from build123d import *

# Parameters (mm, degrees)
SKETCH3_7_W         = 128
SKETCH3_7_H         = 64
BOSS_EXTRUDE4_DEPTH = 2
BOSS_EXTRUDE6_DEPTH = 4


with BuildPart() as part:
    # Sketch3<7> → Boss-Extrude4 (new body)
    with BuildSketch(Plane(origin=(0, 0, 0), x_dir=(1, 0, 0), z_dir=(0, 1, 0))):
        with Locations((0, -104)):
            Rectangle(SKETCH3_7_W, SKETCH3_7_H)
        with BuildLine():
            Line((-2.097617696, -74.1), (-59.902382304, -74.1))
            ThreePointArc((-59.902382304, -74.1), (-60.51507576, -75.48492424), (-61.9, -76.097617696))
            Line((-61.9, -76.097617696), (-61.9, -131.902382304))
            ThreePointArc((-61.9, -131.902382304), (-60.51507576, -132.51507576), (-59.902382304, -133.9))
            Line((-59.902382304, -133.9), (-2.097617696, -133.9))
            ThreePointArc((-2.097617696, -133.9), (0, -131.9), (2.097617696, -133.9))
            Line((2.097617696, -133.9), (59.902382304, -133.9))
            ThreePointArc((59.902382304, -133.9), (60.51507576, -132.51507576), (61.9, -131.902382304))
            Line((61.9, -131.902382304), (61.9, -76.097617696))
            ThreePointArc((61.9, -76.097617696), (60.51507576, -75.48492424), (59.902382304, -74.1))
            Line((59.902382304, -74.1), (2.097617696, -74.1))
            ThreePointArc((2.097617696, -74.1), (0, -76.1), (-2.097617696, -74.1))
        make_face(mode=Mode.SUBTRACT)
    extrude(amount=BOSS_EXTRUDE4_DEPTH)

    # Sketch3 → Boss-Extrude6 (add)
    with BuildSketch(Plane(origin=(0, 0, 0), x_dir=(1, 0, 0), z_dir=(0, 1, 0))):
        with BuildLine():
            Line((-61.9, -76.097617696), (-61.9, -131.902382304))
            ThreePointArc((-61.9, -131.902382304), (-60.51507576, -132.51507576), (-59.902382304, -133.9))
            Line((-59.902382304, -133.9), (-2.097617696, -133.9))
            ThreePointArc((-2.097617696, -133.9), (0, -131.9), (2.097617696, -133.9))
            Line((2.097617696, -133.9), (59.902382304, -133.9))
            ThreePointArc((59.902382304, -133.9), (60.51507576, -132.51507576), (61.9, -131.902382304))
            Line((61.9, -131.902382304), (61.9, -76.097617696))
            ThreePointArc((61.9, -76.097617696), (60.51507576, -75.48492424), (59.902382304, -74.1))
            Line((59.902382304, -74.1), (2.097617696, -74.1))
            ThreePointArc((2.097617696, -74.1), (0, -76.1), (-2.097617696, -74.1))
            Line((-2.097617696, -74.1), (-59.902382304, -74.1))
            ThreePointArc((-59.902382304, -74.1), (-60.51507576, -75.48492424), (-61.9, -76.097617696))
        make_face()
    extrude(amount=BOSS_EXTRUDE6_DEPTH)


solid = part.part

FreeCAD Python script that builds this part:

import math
import FreeCAD as App
import Part
import Sketcher
from FreeCAD import Vector
Q = App.Units.Quantity

doc = App.newDocument("Part")
body = doc.addObject("PartDesign::Body", "Body")

# Sketch on XZ plane
sketch1 = body.newObject("Sketcher::SketchObject", "Sketch")
sketch1.AttachmentSupport = (doc.getObject("XZ_Plane"), [""])
sketch1.MapMode = "FlatFace"
sketch1.addGeometry([
    Part.LineSegment(Vector(-64, 72, 0), Vector(-64, 136, 0)),  # 0
    Part.LineSegment(Vector(-64, 136, 0), Vector(64, 136, 0)),  # 1
    Part.LineSegment(Vector(64, 136, 0), Vector(64, 72, 0)),  # 2
    Part.LineSegment(Vector(64, 72, 0), Vector(-64, 72, 0)),  # 3
    Part.LineSegment(Vector(-59.9, 74.1, 0), Vector(-2.1, 74.1, 0)),  # 4
    Part.ArcOfCircle(Part.Circle(Vector(0, 74, 0), Vector(0, 0, 1), 2.1), math.radians(3), math.radians(177)),  # 5
    Part.LineSegment(Vector(2.1, 74.1, 0), Vector(59.9, 74.1, 0)),  # 6
    Part.ArcOfCircle(Part.Circle(Vector(62, 74, 0), Vector(0, 0, 1), 2.1), math.radians(93), math.radians(177)),  # 7
    Part.LineSegment(Vector(61.9, 76.1, 0), Vector(61.9, 131.9, 0)),  # 8
    Part.ArcOfCircle(Part.Circle(Vector(62, 134, 0), Vector(0, 0, 1), 2.1), math.radians(-177), math.radians(-93)),  # 9
    Part.LineSegment(Vector(59.9, 133.9, 0), Vector(2.1, 133.9, 0)),  # 10
    Part.ArcOfCircle(Part.Circle(Vector(0, 134, 0), Vector(0, 0, 1), 2.1), math.radians(-177), math.radians(-3)),  # 11
    Part.LineSegment(Vector(-2.1, 133.9, 0), Vector(-59.9, 133.9, 0)),  # 12
    Part.ArcOfCircle(Part.Circle(Vector(-62, 134, 0), Vector(0, 0, 1), 2.1), math.radians(-87), math.radians(-3)),  # 13
    Part.LineSegment(Vector(-61.9, 131.9, 0), Vector(-61.9, 76.1, 0)),  # 14
    Part.ArcOfCircle(Part.Circle(Vector(-62, 74, 0), Vector(0, 0, 1), 2.1), math.radians(3), math.radians(87)),  # 15
], False)
sketch1.addConstraint([
    Sketcher.Constraint("Coincident", 0, 2, 1, 1),
    Sketcher.Constraint("Coincident", 1, 2, 2, 1),
    Sketcher.Constraint("Coincident", 2, 2, 3, 1),
    Sketcher.Constraint("Coincident", 3, 2, 0, 1),
    Sketcher.Constraint("Coincident", 4, 2, 5, 2),
    Sketcher.Constraint("Coincident", 5, 1, 6, 1),
    Sketcher.Constraint("Coincident", 6, 2, 7, 2),
    Sketcher.Constraint("Coincident", 7, 1, 8, 1),
    Sketcher.Constraint("Coincident", 8, 2, 9, 2),
    Sketcher.Constraint("Coincident", 9, 1, 10, 1),
    Sketcher.Constraint("Coincident", 10, 2, 11, 2),
    Sketcher.Constraint("Coincident", 11, 1, 12, 1),
    Sketcher.Constraint("Coincident", 12, 2, 13, 2),
    Sketcher.Constraint("Coincident", 13, 1, 14, 1),
    Sketcher.Constraint("Coincident", 14, 2, 15, 2),
    Sketcher.Constraint("Coincident", 15, 1, 4, 1),
    Sketcher.Constraint("Vertical", 0),
    Sketcher.Constraint("Horizontal", 1),
    Sketcher.Constraint("Vertical", 2),
    Sketcher.Constraint("Horizontal", 3),
    Sketcher.Constraint("Horizontal", 4),
    Sketcher.Constraint("Horizontal", 6),
    Sketcher.Constraint("Vertical", 8),
    Sketcher.Constraint("Horizontal", 10),
    Sketcher.Constraint("Horizontal", 12),
    Sketcher.Constraint("Vertical", 14),
    Sketcher.Constraint("Equal", 5, 7),
    Sketcher.Constraint("Equal", 7, 9),
    Sketcher.Constraint("Equal", 9, 11),
    Sketcher.Constraint("Equal", 11, 13),
    Sketcher.Constraint("Equal", 13, 15),
    Sketcher.Constraint("Symmetric", 9, 3, 13, 3, -2),
    Sketcher.Constraint("Symmetric", 7, 3, 15, 3, -2),
    Sketcher.Constraint("Symmetric", 4, 2, 5, 1, -2),
    Sketcher.Constraint("Symmetric", 10, 2, 11, 1, -2),
    Sketcher.Constraint("Horizontal", 5, 3, 7, 3),
    Sketcher.Constraint("Horizontal", 9, 3, 11, 3),
    Sketcher.Constraint("Horizontal", 8, 2, 13, 1),
    Sketcher.Constraint("Vertical", 7, 3, 9, 3),
    Sketcher.Constraint("Vertical", 6, 2, 9, 1),
    Sketcher.Constraint("Radius", 5, Q("2.1 mm")),
    Sketcher.Constraint("DistanceX", 1, 1, 1, 2, Q("128 mm")),
    Sketcher.Constraint("DistanceY", 0, 1, 0, 2, Q("64 mm")),
    Sketcher.Constraint("DistanceY", -1, 1, 5, 3, Q("74 mm")),
    Sketcher.Constraint("DistanceX", -1, 1, 7, 3, Q("62 mm")),
    Sketcher.Constraint("DistanceY", -1, 1, 9, 3, Q("134 mm")),
    Sketcher.Constraint("DistanceX", 0, 2, -1, 1, Q("64 mm")),
    Sketcher.Constraint("DistanceY", -1, 1, 0, 2, Q("136 mm")),
    Sketcher.Constraint("DistanceY", -1, 1, 4, 2, Q("74.1 mm")),
    Sketcher.Constraint("DistanceX", -1, 1, 7, 1, Q("61.9 mm")),
])
pad1 = body.newObject("PartDesign::Pad", "Pad")
pad1.Profile = sketch1
pad1.Length = 2
pad1.Reversed = True

# Sketch on XZ plane
sketch2 = body.newObject("Sketcher::SketchObject", "Sketch001")
sketch2.AttachmentSupport = (doc.getObject("XZ_Plane"), [""])
sketch2.MapMode = "FlatFace"
sketch2.addGeometry([
    Part.LineSegment(Vector(-61.9, 76.1, 0), Vector(-61.9, 131.9, 0)),  # 0
    Part.ArcOfCircle(Part.Circle(Vector(-62, 134, 0), Vector(0, 0, 1), 2.1), math.radians(-87), math.radians(-3)),  # 1
    Part.LineSegment(Vector(-59.9, 133.9, 0), Vector(-2.1, 133.9, 0)),  # 2
    Part.ArcOfCircle(Part.Circle(Vector(0, 134, 0), Vector(0, 0, 1), 2.1), math.radians(-177), math.radians(-3)),  # 3
    Part.LineSegment(Vector(2.1, 133.9, 0), Vector(59.9, 133.9, 0)),  # 4
    Part.ArcOfCircle(Part.Circle(Vector(62, 134, 0), Vector(0, 0, 1), 2.1), math.radians(-177), math.radians(-93)),  # 5
    Part.LineSegment(Vector(61.9, 131.9, 0), Vector(61.9, 76.1, 0)),  # 6
    Part.ArcOfCircle(Part.Circle(Vector(62, 74, 0), Vector(0, 0, 1), 2.1), math.radians(93), math.radians(177)),  # 7
    Part.LineSegment(Vector(59.9, 74.1, 0), Vector(2.1, 74.1, 0)),  # 8
    Part.ArcOfCircle(Part.Circle(Vector(0, 74, 0), Vector(0, 0, 1), 2.1), math.radians(3), math.radians(177)),  # 9
    Part.LineSegment(Vector(-2.1, 74.1, 0), Vector(-59.9, 74.1, 0)),  # 10
    Part.ArcOfCircle(Part.Circle(Vector(-62, 74, 0), Vector(0, 0, 1), 2.1), math.radians(3), math.radians(87)),  # 11
], False)
sketch2.addConstraint([
    Sketcher.Constraint("Coincident", 0, 2, 1, 1),
    Sketcher.Constraint("Coincident", 1, 2, 2, 1),
    Sketcher.Constraint("Coincident", 2, 2, 3, 1),
    Sketcher.Constraint("Coincident", 3, 2, 4, 1),
    Sketcher.Constraint("Coincident", 4, 2, 5, 1),
    Sketcher.Constraint("Coincident", 5, 2, 6, 1),
    Sketcher.Constraint("Coincident", 6, 2, 7, 1),
    Sketcher.Constraint("Coincident", 7, 2, 8, 1),
    Sketcher.Constraint("Coincident", 8, 2, 9, 1),
    Sketcher.Constraint("Coincident", 9, 2, 10, 1),
    Sketcher.Constraint("Coincident", 10, 2, 11, 1),
    Sketcher.Constraint("Coincident", 11, 2, 0, 1),
    Sketcher.Constraint("Vertical", 0),
    Sketcher.Constraint("Horizontal", 2),
    Sketcher.Constraint("Horizontal", 4),
    Sketcher.Constraint("Vertical", 6),
    Sketcher.Constraint("Horizontal", 8),
    Sketcher.Constraint("Horizontal", 10),
    Sketcher.Constraint("Equal", 1, 3),
    Sketcher.Constraint("Equal", 3, 5),
    Sketcher.Constraint("Equal", 5, 7),
    Sketcher.Constraint("Equal", 7, 9),
    Sketcher.Constraint("Equal", 9, 11),
    Sketcher.Constraint("Symmetric", 1, 3, 5, 3, -2),
    Sketcher.Constraint("Symmetric", 7, 3, 11, 3, -2),
    Sketcher.Constraint("Symmetric", 2, 2, 3, 2, -2),
    Sketcher.Constraint("Symmetric", 8, 2, 9, 2, -2),
    Sketcher.Constraint("Horizontal", 1, 3, 3, 3),
    Sketcher.Constraint("Horizontal", 7, 3, 9, 3),
    Sketcher.Constraint("Horizontal", 0, 2, 5, 2),
    Sketcher.Constraint("Vertical", 5, 3, 7, 3),
    Sketcher.Constraint("Vertical", 4, 2, 7, 2),
    Sketcher.Constraint("Radius", 1, Q("2.1 mm")),
    Sketcher.Constraint("DistanceX", 1, 3, -1, 1, Q("62 mm")),
    Sketcher.Constraint("DistanceY", -1, 1, 1, 3, Q("134 mm")),
    Sketcher.Constraint("DistanceY", -1, 1, 7, 3, Q("74 mm")),
    Sketcher.Constraint("DistanceX", 0, 2, -1, 1, Q("61.9 mm")),
    Sketcher.Constraint("DistanceY", -1, 1, 1, 2, Q("133.9 mm")),
])
pad2 = body.newObject("PartDesign::Pad", "Pad001")
pad2.Profile = sketch2
pad2.Length = 4
pad2.Reversed = True

doc.recompute()
